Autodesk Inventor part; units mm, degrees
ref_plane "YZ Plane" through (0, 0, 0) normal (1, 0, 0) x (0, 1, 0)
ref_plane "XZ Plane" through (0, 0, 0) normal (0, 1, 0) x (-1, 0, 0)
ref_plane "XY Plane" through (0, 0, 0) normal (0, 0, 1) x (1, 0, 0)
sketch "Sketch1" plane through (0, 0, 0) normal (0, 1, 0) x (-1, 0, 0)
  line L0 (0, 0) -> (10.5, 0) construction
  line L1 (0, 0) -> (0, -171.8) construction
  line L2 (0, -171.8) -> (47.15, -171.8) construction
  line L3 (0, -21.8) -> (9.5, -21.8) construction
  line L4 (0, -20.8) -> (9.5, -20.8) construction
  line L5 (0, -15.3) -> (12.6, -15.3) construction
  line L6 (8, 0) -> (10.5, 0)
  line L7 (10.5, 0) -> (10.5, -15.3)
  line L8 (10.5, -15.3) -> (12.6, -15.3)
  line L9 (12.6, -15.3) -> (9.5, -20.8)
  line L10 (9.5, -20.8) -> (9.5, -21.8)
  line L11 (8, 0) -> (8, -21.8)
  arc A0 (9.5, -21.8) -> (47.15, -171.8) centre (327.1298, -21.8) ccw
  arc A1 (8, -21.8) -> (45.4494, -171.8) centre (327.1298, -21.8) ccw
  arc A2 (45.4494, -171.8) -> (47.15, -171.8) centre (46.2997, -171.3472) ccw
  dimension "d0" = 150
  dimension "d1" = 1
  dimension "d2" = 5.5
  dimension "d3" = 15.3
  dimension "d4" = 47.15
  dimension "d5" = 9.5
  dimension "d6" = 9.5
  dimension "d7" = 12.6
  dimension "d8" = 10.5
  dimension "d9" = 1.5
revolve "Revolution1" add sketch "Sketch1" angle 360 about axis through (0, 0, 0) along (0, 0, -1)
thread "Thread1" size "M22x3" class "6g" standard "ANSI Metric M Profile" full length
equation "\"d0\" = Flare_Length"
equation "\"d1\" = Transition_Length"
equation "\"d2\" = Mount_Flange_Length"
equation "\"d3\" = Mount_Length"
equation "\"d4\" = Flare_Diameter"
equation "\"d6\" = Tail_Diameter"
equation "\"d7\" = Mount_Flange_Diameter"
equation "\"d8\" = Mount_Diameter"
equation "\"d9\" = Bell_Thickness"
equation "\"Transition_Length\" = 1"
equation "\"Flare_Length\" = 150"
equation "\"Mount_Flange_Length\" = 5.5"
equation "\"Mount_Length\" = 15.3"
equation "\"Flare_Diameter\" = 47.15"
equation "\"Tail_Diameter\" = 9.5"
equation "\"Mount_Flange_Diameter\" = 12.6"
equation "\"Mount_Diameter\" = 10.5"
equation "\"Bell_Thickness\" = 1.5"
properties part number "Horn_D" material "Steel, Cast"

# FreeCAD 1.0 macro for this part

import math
import FreeCAD as App
import Part
import Sketcher
from FreeCAD import Vector
Q = App.Units.Quantity

doc = App.newDocument("Part")
body = doc.addObject("PartDesign::Body", "Body")

sketch1 = doc.addObject("Sketcher::SketchObject", "Sketch")
body.addObject(sketch1)
sketch1.AttachmentSupport = (doc.XZ_Plane, [""])
sketch1.MapMode = "FlatFace"
sketch1.addGeometry(Part.LineSegment(Vector(-10.5, 0, 0), Vector(-8, 0, 0)), False)
sketch1.addGeometry(Part.LineSegment(Vector(-8, 0, 0), Vector(-8, -21.8, 0)), False)
sketch1.addGeometry(Part.ArcOfCircle(Part.Circle(Vector(-327.1, -21.8, 0), Vector(0, 0, 1), 319.1), math.radians(-28), math.radians(0)), False)
sketch1.addGeometry(Part.ArcOfCircle(Part.Circle(Vector(-46.3, -171.3, 0), Vector(0, 0, 1), 1), math.radians(-152), math.radians(-28)), False)
sketch1.addGeometry(Part.ArcOfCircle(Part.Circle(Vector(-327.1, -21.8, 0), Vector(0, 0, 1), 317.6), math.radians(-28), math.radians(0)), False)
sketch1.addGeometry(Part.LineSegment(Vector(-9.5, -21.8, 0), Vector(-9.5, -20.8, 0)), False)
sketch1.addGeometry(Part.LineSegment(Vector(-9.5, -20.8, 0), Vector(-12.6, -15.3, 0)), False)
sketch1.addGeometry(Part.LineSegment(Vector(-12.6, -15.3, 0), Vector(-10.5, -15.3, 0)), False)
sketch1.addGeometry(Part.LineSegment(Vector(-10.5, -15.3, 0), Vector(-10.5, 0, 0)), False)
sketch1.addConstraint(Sketcher.Constraint("Coincident", 0, 2, 1, 1))
sketch1.addConstraint(Sketcher.Constraint("Tangent", 1, 2, 2, 2))
sketch1.addConstraint(Sketcher.Constraint("Tangent", 2, 1, 3, 2))
sketch1.addConstraint(Sketcher.Constraint("Coincident", 3, 1, 4, 1))
sketch1.addConstraint(Sketcher.Constraint("Tangent", 4, 2, 5, 1))
sketch1.addConstraint(Sketcher.Constraint("Coincident", 5, 2, 6, 1))
sketch1.addConstraint(Sketcher.Constraint("Coincident", 6, 2, 7, 1))
sketch1.addConstraint(Sketcher.Constraint("Coincident", 7, 2, 8, 1))
sketch1.addConstraint(Sketcher.Constraint("Coincident", 8, 2, 0, 1))
sketch1.addConstraint(Sketcher.Constraint("Horizontal", 0))
sketch1.addConstraint(Sketcher.Constraint("Vertical", 1))
sketch1.addConstraint(Sketcher.Constraint("Vertical", 5))
sketch1.addConstraint(Sketcher.Constraint("Horizontal", 7))
sketch1.addConstraint(Sketcher.Constraint("Vertical", 8))
sketch1.addConstraint(Sketcher.Constraint("Coincident", 4, 3, 2, 3))
sketch1.addConstraint(Sketcher.Constraint("PointOnObject", 0, 2, -1))
sketch1.addConstraint(Sketcher.Constraint("Horizontal", 2, 1, 3, 1))
sketch1.addConstraint(Sketcher.Constraint("DistanceY", 5, 1, 5, 2, Q("1 mm")))
sketch1.addConstraint(Sketcher.Constraint("DistanceY", 8, 1, 8, 2, Q("15.3 mm")))
sketch1.addConstraint(Sketcher.Constraint("DistanceY", 2, 1, 1, 2, Q("150 mm")))
sketch1.addConstraint(Sketcher.Constraint("DistanceX", 7, 2, 5, 2, Q("1 mm")))
sketch1.addConstraint(Sketcher.Constraint("DistanceX", 4, 2, -1, 1, Q("9.5 mm")))
sketch1.addConstraint(Sketcher.Constraint("DistanceX", 6, 2, -1, 1, Q("12.6 mm")))
sketch1.addConstraint(Sketcher.Constraint("DistanceX", 4, 2, 1, 2, Q("1.5 mm")))
sketch1.addConstraint(Sketcher.Constraint("DistanceY", 5, 2, 6, 2, Q("5.5 mm")))
sketch1.addConstraint(Sketcher.Constraint("DistanceX", 3, 1, -1, 1, Q("47.15 mm")))
revolution = doc.addObject("PartDesign::Revolution", "Revolution")
body.addObject(revolution)
revolution.Profile = sketch1
revolution.ReferenceAxis = (sketch1, ["V_Axis"])
revolution.Angle = 360

doc.recompute()
